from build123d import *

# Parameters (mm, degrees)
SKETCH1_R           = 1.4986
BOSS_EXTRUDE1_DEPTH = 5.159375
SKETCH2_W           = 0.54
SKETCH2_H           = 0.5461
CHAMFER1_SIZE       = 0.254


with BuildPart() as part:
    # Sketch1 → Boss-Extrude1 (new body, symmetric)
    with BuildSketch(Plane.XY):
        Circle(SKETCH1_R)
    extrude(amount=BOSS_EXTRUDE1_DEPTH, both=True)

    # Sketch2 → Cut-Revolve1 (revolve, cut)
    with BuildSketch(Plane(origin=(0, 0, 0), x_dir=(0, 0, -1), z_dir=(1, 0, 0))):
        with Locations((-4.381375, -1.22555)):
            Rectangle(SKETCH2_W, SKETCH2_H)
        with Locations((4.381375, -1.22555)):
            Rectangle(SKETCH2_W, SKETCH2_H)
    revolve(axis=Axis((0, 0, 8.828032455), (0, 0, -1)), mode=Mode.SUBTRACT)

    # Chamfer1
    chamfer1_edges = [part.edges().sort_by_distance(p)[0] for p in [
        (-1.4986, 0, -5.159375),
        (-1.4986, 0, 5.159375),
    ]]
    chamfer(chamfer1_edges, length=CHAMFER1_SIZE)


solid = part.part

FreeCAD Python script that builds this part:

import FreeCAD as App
import Part
import Sketcher

V = App.Vector
Q = App.Units.Quantity


def edges_at(feature, points):
    """Names of the edges that pass closest to the given points."""
    edges = feature.Shape.Edges
    near = lambda p: min(range(len(edges)), key=lambda i: edges[i].distToShape(Part.Vertex(*p))[0])
    return sorted({f"Edge{near(p) + 1}" for p in points})

doc = App.newDocument("Part")
body = doc.addObject("PartDesign::Body", "Body")

sketch1 = body.newObject("Sketcher::SketchObject", "Sketch")
sketch1.AttachmentSupport = (doc.getObject("XY_Plane"), [""])
sketch1.MapMode = "FlatFace"
sketch1.addGeometry(Part.Circle(V(0, 0, 0), V(0, 0, 1), 1.5), False)
sketch1.addConstraint(Sketcher.Constraint("Coincident", 0, 3, -1, 1))
sketch1.addConstraint(Sketcher.Constraint("Diameter", 0, Q("0.118 in")))
pad1 = body.newObject("PartDesign::Pad", "Pad")
pad1.Profile = sketch1
pad1.Length = Q("0.40625 in")
pad1.Midplane = True

sketch2 = body.newObject("Sketcher::SketchObject", "Sketch001")
sketch2.AttachmentSupport = (doc.getObject("YZ_Plane"), [""])
sketch2.MapMode = "FlatFace"
sketch2.addGeometry(Part.LineSegment(V(-1, 4.7, 0), V(-1.5, 4.7, 0)), False)
sketch2.addGeometry(Part.LineSegment(V(-1.5, 4.7, 0), V(-1.5, 4.1, 0)), False)
sketch2.addGeometry(Part.LineSegment(V(-1.5, 4.1, 0), V(-1, 4.1, 0)), False)
sketch2.addGeometry(Part.LineSegment(V(-1, 4.1, 0), V(-1, 4.7, 0)), False)
sketch2.addGeometry(Part.LineSegment(V(-1, -4.1, 0), V(-1.5, -4.1, 0)), False)
sketch2.addGeometry(Part.LineSegment(V(-1.5, -4.1, 0), V(-1.5, -4.7, 0)), False)
sketch2.addGeometry(Part.LineSegment(V(-1.5, -4.7, 0), V(-1, -4.7, 0)), False)
sketch2.addGeometry(Part.LineSegment(V(-1, -4.7, 0), V(-1, -4.1, 0)), False)
sketch2.addConstraint(Sketcher.Constraint("Coincident", 0, 2, 1, 1))
sketch2.addConstraint(Sketcher.Constraint("Coincident", 1, 2, 2, 1))
sketch2.addConstraint(Sketcher.Constraint("Coincident", 2, 2, 3, 1))
sketch2.addConstraint(Sketcher.Constraint("Coincident", 3, 2, 0, 1))
sketch2.addConstraint(Sketcher.Constraint("Coincident", 4, 2, 5, 1))
sketch2.addConstraint(Sketcher.Constraint("Coincident", 5, 2, 6, 1))
sketch2.addConstraint(Sketcher.Constraint("Coincident", 6, 2, 7, 1))
sketch2.addConstraint(Sketcher.Constraint("Coincident", 7, 2, 4, 1))
sketch2.addConstraint(Sketcher.Constraint("Horizontal", 0))
sketch2.addConstraint(Sketcher.Constraint("Vertical", 1))
sketch2.addConstraint(Sketcher.Constraint("Horizontal", 2))
sketch2.addConstraint(Sketcher.Constraint("Vertical", 3))
sketch2.addConstraint(Sketcher.Constraint("Horizontal", 4))
sketch2.addConstraint(Sketcher.Constraint("Vertical", 5))
sketch2.addConstraint(Sketcher.Constraint("Horizontal", 6))
sketch2.addConstraint(Sketcher.Constraint("Vertical", 7))
sketch2.addConstraint(Sketcher.Constraint("Symmetric", 1, 2, 4, 2, -1))
sketch2.addConstraint(Sketcher.Constraint("Symmetric", 3, 2, 6, 2, -1))
sketch2.addConstraint(Sketcher.Constraint("DistanceX", 0, 2, 0, 1, Q("0.0215 in")))
sketch2.addConstraint(Sketcher.Constraint("DistanceX", 0, 2, -1, 1, Q("0.059 in")))
sketch2.addConstraint(Sketcher.Constraint("DistanceY", 1, 2, 1, 1, Q("0.54 mm")))
sketch2.addConstraint(Sketcher.Constraint("DistanceY", 4, 2, 1, 2, Q("8.22275 mm")))
groove = body.newObject("PartDesign::Groove", "Groove")
groove.Profile = sketch2
groove.ReferenceAxis = (sketch2, ["V_Axis"])
groove.Angle = 360
doc.recompute()

chamfer = body.newObject("PartDesign::Chamfer", "Chamfer")
chamfer.Base = (groove, edges_at(groove, [(-1.499, 0, -5.159), (-1.499, 0, 5.159)]))
chamfer.Size = Q("0.01 in")

doc.recompute()
